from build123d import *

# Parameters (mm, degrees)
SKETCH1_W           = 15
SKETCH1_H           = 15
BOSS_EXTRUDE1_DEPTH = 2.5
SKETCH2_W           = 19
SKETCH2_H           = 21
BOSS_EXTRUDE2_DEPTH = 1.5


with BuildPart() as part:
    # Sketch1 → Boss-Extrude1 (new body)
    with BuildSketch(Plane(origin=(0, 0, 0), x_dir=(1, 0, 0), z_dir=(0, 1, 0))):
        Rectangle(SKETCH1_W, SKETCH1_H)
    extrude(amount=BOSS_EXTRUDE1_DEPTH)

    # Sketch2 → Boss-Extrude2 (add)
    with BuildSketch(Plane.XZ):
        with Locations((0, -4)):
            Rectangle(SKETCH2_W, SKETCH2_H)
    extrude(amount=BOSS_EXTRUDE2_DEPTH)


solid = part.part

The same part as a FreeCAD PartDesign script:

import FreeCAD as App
import Part
import Sketcher

V = App.Vector
Q = App.Units.Quantity


def add_polygon(sketch, points):
    """Adds a closed chain of lines whose ends are joined by coincident constraints."""
    first, n = sketch.GeometryCount, len(points)
    for a, b in zip(points, points[1:] + points[:1]):
        sketch.addGeometry(Part.LineSegment(App.Vector(*a, 0), App.Vector(*b, 0)), False)
    for i in range(n):
        sketch.addConstraint(Sketcher.Constraint("Coincident", first + i, 2, first + (i + 1) % n, 1))

doc = App.newDocument("Part")
params = doc.addObject("Spreadsheet::Sheet", "Params")
for row, (alias, value) in enumerate([
    ("sketch1_width", "15 mm"),
    ("pad1_length", "2.5 mm"),
    ("sketch2_width", "19 mm"),
    ("sketch2_height", "21 mm"),
    ("pad2_length", "1.5 mm"),
], start=1):
    params.set(f"A{row}", alias)
    params.set(f"B{row}", "=" + value)
    params.setAlias(f"B{row}", alias)

body = doc.addObject("PartDesign::Body", "Body")

sketch1 = body.newObject("Sketcher::SketchObject", "Sketch")
sketch1.AttachmentSupport = (doc.getObject("XZ_Plane"), [""])
sketch1.MapMode = "FlatFace"
add_polygon(sketch1, [(-8, -8), (-8, 8), (8, 8), (8, -8)])
sketch1.addConstraint([
    Sketcher.Constraint("Vertical", 0),
    Sketcher.Constraint("Horizontal", 1),
    Sketcher.Constraint("Vertical", 2),
    Sketcher.Constraint("Horizontal", 3),
    Sketcher.Constraint("Symmetric", 0, 2, 2, 2, -1, 1),
    Sketcher.Constraint("Equal", 3, 0),
    Sketcher.Constraint("DistanceX", 1, 1, 1, 2, Q("15 mm")),
])
sketch1.setExpression("Constraints[10]", "Params.sketch1_width")
pad1 = body.newObject("PartDesign::Pad", "Pad")
pad1.Profile = sketch1
pad1.setExpression("Length", "Params.pad1_length")
pad1.Reversed = True

sketch2 = body.newObject("Sketcher::SketchObject", "Sketch001")
sketch2.AttachmentSupport = (doc.getObject("XZ_Plane"), [""])
sketch2.MapMode = "FlatFace"
add_polygon(sketch2, [(-10, 6), (-10, -14), (10, -14), (10, 6)])
sketch2.addConstraint([
    Sketcher.Constraint("Vertical", 0),
    Sketcher.Constraint("Horizontal", 1),
    Sketcher.Constraint("Vertical", 2),
    Sketcher.Constraint("Horizontal", 3),
    Sketcher.Constraint("DistanceX", 1, 1, 1, 2, Q("19 mm")),
    Sketcher.Constraint("DistanceY", 0, 2, 0, 1, Q("21 mm")),
    Sketcher.Constraint("DistanceX", 0, 2, -1, 1, Q("9.5 mm")),
    Sketcher.Constraint("DistanceY", 0, 2, -1, 1, Q("14.5 mm")),
])
sketch2.setExpression("Constraints[8]", "Params.sketch2_width")
sketch2.setExpression("Constraints[9]", "Params.sketch2_height")
pad2 = body.newObject("PartDesign::Pad", "Pad001")
pad2.Profile = sketch2
pad2.setExpression("Length", "Params.pad2_length")

doc.recompute()
